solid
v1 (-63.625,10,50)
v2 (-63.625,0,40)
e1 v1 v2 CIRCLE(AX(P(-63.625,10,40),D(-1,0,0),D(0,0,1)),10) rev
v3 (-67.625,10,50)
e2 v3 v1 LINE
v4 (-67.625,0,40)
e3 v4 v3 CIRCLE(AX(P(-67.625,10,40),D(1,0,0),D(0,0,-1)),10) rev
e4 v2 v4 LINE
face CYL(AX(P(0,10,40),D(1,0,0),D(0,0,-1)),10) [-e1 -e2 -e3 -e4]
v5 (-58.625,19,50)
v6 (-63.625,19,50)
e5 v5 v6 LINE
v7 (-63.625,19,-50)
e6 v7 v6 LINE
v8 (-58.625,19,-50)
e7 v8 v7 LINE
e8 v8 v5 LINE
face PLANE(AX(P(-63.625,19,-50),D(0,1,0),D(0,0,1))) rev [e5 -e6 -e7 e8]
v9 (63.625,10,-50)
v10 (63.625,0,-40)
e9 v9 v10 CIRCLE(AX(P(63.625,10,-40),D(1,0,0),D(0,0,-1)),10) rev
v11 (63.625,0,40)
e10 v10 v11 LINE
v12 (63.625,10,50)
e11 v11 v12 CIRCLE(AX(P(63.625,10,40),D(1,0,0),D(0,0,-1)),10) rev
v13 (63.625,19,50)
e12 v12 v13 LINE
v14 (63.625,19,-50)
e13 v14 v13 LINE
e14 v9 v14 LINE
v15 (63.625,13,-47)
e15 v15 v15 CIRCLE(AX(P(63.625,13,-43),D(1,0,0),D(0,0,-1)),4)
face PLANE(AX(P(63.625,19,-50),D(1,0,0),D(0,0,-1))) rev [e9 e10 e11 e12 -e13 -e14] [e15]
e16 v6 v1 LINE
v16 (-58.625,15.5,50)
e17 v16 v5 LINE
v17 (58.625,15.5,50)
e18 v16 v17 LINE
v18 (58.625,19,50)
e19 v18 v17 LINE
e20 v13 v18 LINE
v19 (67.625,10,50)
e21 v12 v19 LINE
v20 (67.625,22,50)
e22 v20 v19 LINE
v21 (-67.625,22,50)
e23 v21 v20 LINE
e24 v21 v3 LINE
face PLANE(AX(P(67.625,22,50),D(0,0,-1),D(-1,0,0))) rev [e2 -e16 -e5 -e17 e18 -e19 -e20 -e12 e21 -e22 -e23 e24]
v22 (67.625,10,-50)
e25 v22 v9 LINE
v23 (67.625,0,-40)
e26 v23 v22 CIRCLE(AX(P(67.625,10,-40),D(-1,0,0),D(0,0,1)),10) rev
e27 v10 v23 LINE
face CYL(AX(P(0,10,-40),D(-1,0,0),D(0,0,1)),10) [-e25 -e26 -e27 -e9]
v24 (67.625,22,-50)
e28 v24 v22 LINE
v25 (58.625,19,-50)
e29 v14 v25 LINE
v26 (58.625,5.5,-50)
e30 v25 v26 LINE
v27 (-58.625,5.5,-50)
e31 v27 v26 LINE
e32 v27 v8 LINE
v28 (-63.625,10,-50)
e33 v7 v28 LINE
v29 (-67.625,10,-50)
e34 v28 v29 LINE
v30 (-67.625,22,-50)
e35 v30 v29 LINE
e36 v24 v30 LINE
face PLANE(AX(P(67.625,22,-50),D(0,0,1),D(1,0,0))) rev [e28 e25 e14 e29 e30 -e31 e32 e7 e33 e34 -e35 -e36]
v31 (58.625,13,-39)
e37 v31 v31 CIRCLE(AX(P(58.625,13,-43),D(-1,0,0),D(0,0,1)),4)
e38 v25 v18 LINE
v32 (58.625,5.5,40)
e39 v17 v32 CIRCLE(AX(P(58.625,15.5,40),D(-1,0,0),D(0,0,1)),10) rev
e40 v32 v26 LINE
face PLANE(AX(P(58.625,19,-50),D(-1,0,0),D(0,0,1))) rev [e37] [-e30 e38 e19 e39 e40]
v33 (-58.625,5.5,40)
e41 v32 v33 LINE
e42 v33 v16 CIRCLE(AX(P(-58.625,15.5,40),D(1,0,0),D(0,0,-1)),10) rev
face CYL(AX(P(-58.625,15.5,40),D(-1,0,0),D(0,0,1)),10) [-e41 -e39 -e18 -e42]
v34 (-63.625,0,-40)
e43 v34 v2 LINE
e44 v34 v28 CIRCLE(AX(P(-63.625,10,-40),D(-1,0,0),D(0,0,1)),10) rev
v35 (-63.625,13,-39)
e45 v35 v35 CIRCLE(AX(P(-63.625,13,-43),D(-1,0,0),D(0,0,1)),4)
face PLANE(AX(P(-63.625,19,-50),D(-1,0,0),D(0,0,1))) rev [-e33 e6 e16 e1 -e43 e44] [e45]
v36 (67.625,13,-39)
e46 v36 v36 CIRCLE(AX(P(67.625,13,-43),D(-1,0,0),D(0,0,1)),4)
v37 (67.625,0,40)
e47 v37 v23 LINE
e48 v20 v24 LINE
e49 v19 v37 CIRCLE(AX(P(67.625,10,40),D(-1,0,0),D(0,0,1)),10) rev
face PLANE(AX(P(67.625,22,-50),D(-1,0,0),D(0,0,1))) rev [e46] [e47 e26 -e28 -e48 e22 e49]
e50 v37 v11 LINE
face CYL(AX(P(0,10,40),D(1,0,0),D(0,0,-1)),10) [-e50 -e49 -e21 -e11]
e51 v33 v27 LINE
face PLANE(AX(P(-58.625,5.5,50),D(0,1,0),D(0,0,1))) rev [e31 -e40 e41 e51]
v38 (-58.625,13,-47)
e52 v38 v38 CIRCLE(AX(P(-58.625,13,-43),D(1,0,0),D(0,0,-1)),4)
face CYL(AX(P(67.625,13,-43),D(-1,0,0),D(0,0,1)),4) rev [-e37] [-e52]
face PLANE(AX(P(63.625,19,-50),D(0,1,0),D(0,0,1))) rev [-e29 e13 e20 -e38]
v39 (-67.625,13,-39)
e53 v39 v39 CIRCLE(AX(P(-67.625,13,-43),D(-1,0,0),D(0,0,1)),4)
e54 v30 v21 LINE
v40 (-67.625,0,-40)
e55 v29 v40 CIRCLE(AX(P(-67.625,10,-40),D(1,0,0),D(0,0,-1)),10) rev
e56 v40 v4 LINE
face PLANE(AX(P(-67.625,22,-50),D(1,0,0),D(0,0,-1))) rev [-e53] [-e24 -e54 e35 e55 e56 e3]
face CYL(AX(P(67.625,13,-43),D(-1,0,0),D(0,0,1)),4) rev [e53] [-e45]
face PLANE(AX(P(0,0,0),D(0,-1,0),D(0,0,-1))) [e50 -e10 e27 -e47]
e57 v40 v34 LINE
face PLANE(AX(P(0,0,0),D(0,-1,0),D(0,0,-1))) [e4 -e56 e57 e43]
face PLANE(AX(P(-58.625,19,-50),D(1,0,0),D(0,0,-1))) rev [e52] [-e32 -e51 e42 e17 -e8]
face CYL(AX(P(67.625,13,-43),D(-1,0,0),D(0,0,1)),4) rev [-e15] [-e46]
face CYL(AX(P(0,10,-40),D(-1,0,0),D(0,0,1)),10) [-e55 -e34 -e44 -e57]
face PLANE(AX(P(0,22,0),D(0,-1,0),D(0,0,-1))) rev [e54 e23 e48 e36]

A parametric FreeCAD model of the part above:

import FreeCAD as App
import Part
import Sketcher
Q = App.Units.Quantity


def edges_at(feature, points):
    """Names of the edges that pass closest to the given points."""
    edges = feature.Shape.Edges
    near = lambda p: min(range(len(edges)), key=lambda i: edges[i].distToShape(Part.Vertex(*p))[0])
    return sorted({f"Edge{near(p) + 1}" for p in points})


def add_polygon(sketch, points):
    """Adds a closed chain of lines whose ends are joined by coincident constraints."""
    first, n = sketch.GeometryCount, len(points)
    for a, b in zip(points, points[1:] + points[:1]):
        sketch.addGeometry(Part.LineSegment(App.Vector(*a, 0), App.Vector(*b, 0)), False)
    for i in range(n):
        sketch.addConstraint(Sketcher.Constraint("Coincident", first + i, 2, first + (i + 1) % n, 1))

doc = App.newDocument("Part")
body = doc.addObject("PartDesign::Body", "Body")

sketch1 = body.newObject("Sketcher::SketchObject", "Sketch")
sketch1.AttachmentSupport = (doc.getObject("XZ_Plane"), [""])
sketch1.MapMode = "FlatFace"
add_polygon(sketch1, [(-68, -50), (-68, 50), (68, 50), (68, -50)])
sketch1.addConstraint([
    Sketcher.Constraint("Vertical", 0),
    Sketcher.Constraint("Horizontal", 1),
    Sketcher.Constraint("Vertical", 2),
    Sketcher.Constraint("Horizontal", 3),
    Sketcher.Constraint("Symmetric", 0, 2, 2, 2, -1, 1),
    Sketcher.Constraint("DistanceY", 0, 1, 0, 2, Q("100 mm")),
    Sketcher.Constraint("DistanceX", 1, 1, 1, 2, Q("135.25 mm")),
])
pad1 = body.newObject("PartDesign::Pad", "Pad")
pad1.Profile = sketch1
pad1.Length = 22
pad1.Reversed = True

sketch2 = body.newObject("Sketcher::SketchObject", "Sketch001")
sketch2.AttachmentSupport = (doc.getObject("XY_Plane"), [""])
sketch2.MapMode = "FlatFace"
sketch2.AttachmentOffset = App.Placement(App.Vector(0, 0, 50), App.Rotation())
add_polygon(sketch2, [(-64, 19), (-64, 0), (-59, 0), (-59, 19)])
add_polygon(sketch2, [(59, 19), (59, 0), (64, 0), (64, 19)])
sketch2.addConstraint([
    Sketcher.Constraint("Vertical", 0),
    Sketcher.Constraint("Horizontal", 1),
    Sketcher.Constraint("Vertical", 2),
    Sketcher.Constraint("Horizontal", 3),
    Sketcher.Constraint("Vertical", 4),
    Sketcher.Constraint("Horizontal", 5),
    Sketcher.Constraint("Vertical", 6),
    Sketcher.Constraint("Horizontal", 7),
    Sketcher.Constraint("Symmetric", 1, 2, 4, 2, -1, 1),
    Sketcher.Constraint("Symmetric", 0, 2, 5, 2, -2),
    Sketcher.Constraint("Horizontal", 3, 2, 6, 2),
    Sketcher.Constraint("DistanceX", 1, 1, 1, 2, Q("5 mm")),
    Sketcher.Constraint("DistanceY", 0, 2, 0, 1, Q("19 mm")),
    Sketcher.Constraint("DistanceX", 1, 2, 4, 2, Q("117.25 mm")),
])
pocket1 = body.newObject("PartDesign::Pocket", "Pocket")
pocket1.Profile = sketch2
pocket1.Type = "ThroughAll"

sketch3 = body.newObject("Sketcher::SketchObject", "Sketch002")
sketch3.AttachmentSupport = (doc.getObject("XY_Plane"), [""])
sketch3.MapMode = "FlatFace"
sketch3.AttachmentOffset = App.Placement(App.Vector(0, 0, -50), App.Rotation())
add_polygon(sketch3, [(59, 6), (59, -6), (-59, -6), (-59, 6)])
sketch3.addConstraint([
    Sketcher.Constraint("Vertical", 0),
    Sketcher.Constraint("Horizontal", 1),
    Sketcher.Constraint("Vertical", 2),
    Sketcher.Constraint("Horizontal", 3),
    Sketcher.Constraint("Symmetric", 0, 2, 2, 2, -1, 1),
    Sketcher.Constraint("DistanceY", 0, 2, 0, 1, Q("11 mm")),
    Sketcher.Constraint("DistanceX", 1, 2, 1, 1, Q("117.25 mm")),
])
pocket2 = body.newObject("PartDesign::Pocket", "Pocket001")
pocket2.Profile = sketch3
pocket2.Type = "ThroughAll"
pocket2.Reversed = True
doc.recompute()

fillet = body.newObject("PartDesign::Fillet", "Fillet")
fillet.Base = (pocket2, edges_at(pocket2, [(0, 5.5, 50)]))
fillet.Radius = 10
doc.recompute()

fillet2 = body.newObject("PartDesign::Fillet", "Fillet001")
fillet2.Base = (fillet, edges_at(fillet, [(-65.625, 0, 50)]))
fillet2.Radius = 10
doc.recompute()

fillet3 = body.newObject("PartDesign::Fillet", "Fillet002")
fillet3.Base = (fillet2, edges_at(fillet2, [(65.625, 0, 50)]))
fillet3.Radius = 10
doc.recompute()

fillet4 = body.newObject("PartDesign::Fillet", "Fillet003")
fillet4.Base = (fillet3, edges_at(fillet3, [(-65.625, 0, -50)]))
fillet4.Radius = 10
doc.recompute()

fillet5 = body.newObject("PartDesign::Fillet", "Fillet004")
fillet5.Base = (fillet4, edges_at(fillet4, [(65.625, 0, -50)]))
fillet5.Radius = 10

sketch4 = body.newObject("Sketcher::SketchObject", "Sketch003")
sketch4.AttachmentSupport = (doc.getObject("YZ_Plane"), [""])
sketch4.MapMode = "FlatFace"
sketch4.AttachmentOffset = App.Placement(App.Vector(0, 0, -67.625), App.Rotation())
sketch4.addGeometry(Part.Circle(App.Vector(13, -43, 0), App.Vector(0, 0, 1), 4), False)
sketch4.addConstraint([
    Sketcher.Constraint("Diameter", 0, Q("8 mm")),
    Sketcher.Constraint("DistanceX", -1, 1, 0, 3, Q("13 mm")),
    Sketcher.Constraint("DistanceY", 0, 3, -1, 1, Q("43 mm")),
])
pocket3 = body.newObject("PartDesign::Pocket", "Pocket002")
pocket3.Profile = sketch4
pocket3.Type = "ThroughAll"
pocket3.Reversed = True

doc.recompute()
